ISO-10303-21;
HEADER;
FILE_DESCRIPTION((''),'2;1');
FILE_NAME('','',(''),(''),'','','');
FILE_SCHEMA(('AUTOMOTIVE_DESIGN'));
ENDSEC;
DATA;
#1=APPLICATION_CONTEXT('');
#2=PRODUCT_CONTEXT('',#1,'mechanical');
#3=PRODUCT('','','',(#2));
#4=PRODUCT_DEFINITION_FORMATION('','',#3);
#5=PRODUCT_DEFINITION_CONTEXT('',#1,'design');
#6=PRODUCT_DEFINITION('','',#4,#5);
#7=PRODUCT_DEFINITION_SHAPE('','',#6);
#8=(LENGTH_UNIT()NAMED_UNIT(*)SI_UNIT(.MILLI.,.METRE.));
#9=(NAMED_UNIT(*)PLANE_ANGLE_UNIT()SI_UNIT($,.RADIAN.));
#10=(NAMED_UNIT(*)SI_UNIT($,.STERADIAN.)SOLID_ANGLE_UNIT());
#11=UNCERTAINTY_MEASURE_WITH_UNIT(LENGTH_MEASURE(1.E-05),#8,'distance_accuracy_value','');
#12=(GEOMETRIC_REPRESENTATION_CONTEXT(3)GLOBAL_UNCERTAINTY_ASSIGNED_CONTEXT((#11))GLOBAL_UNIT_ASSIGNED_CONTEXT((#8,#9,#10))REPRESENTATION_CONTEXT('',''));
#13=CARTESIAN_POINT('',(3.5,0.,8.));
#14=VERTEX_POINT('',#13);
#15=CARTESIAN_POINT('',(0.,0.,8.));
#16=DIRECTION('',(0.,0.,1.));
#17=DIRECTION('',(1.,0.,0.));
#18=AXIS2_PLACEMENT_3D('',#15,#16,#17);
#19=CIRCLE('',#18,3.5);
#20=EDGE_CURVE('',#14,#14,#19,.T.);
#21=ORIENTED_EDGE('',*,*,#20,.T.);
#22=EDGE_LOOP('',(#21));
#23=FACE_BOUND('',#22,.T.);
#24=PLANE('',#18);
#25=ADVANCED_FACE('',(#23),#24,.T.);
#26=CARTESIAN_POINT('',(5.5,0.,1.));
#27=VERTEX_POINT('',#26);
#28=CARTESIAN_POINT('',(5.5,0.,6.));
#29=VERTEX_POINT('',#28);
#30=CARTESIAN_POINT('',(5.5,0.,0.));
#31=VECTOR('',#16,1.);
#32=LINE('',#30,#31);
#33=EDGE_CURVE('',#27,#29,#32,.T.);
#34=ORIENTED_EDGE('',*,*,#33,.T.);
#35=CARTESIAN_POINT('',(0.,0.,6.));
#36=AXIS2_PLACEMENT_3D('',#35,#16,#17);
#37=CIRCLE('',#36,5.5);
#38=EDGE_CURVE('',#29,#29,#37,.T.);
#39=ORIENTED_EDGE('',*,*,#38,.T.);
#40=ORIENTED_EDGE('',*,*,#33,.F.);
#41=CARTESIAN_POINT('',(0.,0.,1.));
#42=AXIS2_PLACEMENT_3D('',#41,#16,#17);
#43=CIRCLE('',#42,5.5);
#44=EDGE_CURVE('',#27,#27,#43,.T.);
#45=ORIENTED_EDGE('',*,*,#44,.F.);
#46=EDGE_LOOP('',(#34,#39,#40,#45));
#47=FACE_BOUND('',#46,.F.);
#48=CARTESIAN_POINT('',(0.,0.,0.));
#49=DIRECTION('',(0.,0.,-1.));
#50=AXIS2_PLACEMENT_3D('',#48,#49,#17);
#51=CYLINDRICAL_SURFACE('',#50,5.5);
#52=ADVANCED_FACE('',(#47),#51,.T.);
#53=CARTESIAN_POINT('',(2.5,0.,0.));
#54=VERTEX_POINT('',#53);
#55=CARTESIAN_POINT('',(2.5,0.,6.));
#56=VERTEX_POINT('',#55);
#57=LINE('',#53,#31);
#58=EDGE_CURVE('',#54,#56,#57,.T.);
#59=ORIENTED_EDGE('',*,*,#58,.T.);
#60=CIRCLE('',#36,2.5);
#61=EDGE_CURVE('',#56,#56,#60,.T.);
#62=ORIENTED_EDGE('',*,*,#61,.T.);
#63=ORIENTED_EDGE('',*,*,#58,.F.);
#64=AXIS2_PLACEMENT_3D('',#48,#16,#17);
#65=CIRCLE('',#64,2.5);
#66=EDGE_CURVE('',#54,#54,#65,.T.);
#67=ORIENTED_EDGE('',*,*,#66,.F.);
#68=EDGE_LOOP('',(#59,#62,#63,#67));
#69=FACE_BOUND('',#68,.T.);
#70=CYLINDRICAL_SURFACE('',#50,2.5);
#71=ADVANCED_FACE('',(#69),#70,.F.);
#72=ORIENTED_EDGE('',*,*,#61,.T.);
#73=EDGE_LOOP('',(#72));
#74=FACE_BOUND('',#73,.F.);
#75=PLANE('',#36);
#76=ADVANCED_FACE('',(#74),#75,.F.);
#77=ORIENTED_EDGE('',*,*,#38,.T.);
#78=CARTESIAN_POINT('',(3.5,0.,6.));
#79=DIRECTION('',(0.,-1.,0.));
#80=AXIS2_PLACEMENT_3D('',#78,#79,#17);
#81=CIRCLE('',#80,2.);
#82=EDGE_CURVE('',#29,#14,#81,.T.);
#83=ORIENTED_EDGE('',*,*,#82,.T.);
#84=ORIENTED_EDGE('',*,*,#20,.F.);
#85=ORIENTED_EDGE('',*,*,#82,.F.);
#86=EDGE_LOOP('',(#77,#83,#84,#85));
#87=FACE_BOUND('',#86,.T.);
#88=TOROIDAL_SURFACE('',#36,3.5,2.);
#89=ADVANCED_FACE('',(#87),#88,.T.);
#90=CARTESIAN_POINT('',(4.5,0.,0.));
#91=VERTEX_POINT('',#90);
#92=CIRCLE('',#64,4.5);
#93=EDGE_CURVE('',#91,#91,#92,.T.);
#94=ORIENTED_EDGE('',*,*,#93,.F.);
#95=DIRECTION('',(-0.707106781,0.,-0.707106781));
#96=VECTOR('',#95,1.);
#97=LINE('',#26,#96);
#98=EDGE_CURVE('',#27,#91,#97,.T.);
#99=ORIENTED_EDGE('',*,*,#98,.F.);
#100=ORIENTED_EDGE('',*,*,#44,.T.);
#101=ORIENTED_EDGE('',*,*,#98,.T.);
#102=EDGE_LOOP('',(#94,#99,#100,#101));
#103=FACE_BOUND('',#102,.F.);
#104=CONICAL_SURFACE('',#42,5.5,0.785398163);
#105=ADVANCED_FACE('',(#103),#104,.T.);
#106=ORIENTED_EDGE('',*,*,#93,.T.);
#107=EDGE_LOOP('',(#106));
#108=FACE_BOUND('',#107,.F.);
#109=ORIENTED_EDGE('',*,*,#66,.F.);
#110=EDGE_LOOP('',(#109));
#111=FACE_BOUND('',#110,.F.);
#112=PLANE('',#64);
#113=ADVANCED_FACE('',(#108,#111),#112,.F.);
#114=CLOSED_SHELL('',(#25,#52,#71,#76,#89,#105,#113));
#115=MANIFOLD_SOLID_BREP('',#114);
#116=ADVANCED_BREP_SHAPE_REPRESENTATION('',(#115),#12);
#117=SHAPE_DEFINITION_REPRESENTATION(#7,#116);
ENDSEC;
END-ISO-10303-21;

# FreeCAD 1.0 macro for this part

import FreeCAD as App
import Part
import Sketcher

V = App.Vector
Q = App.Units.Quantity


def edges_at(feature, points):
    """Names of the edges that pass closest to the given points."""
    edges = feature.Shape.Edges
    near = lambda p: min(range(len(edges)), key=lambda i: edges[i].distToShape(Part.Vertex(*p))[0])
    return sorted({f"Edge{near(p) + 1}" for p in points})

doc = App.newDocument("Part")
params = doc.addObject("Spreadsheet::Sheet", "Params")
for row, (alias, value) in enumerate([
    ("sketch1_diameter", "11 mm"),
    ("pad1_length", "8 mm"),
    ("fillet_radius", "2 mm"),
    ("sketch2_diameter", "5 mm"),
    ("pocket1_length", "6 mm"),
    ("chamfer_size", "1 mm"),
], start=1):
    params.set(f"A{row}", alias)
    params.set(f"B{row}", "=" + value)
    params.setAlias(f"B{row}", alias)

body = doc.addObject("PartDesign::Body", "Body")

sketch1 = body.newObject("Sketcher::SketchObject", "Sketch")
sketch1.AttachmentSupport = (doc.getObject("XY_Plane"), [""])
sketch1.MapMode = "FlatFace"
sketch1.addGeometry(Part.Circle(V(0, 0, 0), V(0, 0, 1), 6), False)
sketch1.addConstraint([
    Sketcher.Constraint("Coincident", 0, 3, -1, 1),
    Sketcher.Constraint("Diameter", 0, Q("11 mm")),
])
sketch1.setExpression("Constraints[1]", "Params.sketch1_diameter")
pad1 = body.newObject("PartDesign::Pad", "Pad")
pad1.Profile = sketch1
pad1.setExpression("Length", "Params.pad1_length")
doc.recompute()

fillet = body.newObject("PartDesign::Fillet", "Fillet")
fillet.Base = (pad1, edges_at(pad1, [(-5.5, 0, 8)]))
fillet.setExpression("Radius", "Params.fillet_radius")

sketch2 = body.newObject("Sketcher::SketchObject", "Sketch001")
sketch2.AttachmentSupport = (doc.getObject("XY_Plane"), [""])
sketch2.MapMode = "FlatFace"
sketch2.addGeometry(Part.Circle(V(0, 0, 0), V(0, 0, 1), 2.5), False)
sketch2.addConstraint([
    Sketcher.Constraint("Coincident", 0, 3, -1, 1),
    Sketcher.Constraint("Diameter", 0, Q("5 mm")),
])
sketch2.setExpression("Constraints[1]", "Params.sketch2_diameter")
pocket1 = body.newObject("PartDesign::Pocket", "Pocket")
pocket1.Profile = sketch2
pocket1.setExpression("Length", "Params.pocket1_length")
pocket1.Reversed = True
doc.recompute()

chamfer = body.newObject("PartDesign::Chamfer", "Chamfer")
chamfer.Base = (pocket1, edges_at(pocket1, [(-5.5, 0, 0)]))
chamfer.setExpression("Size", "Params.chamfer_size")

doc.recompute()
